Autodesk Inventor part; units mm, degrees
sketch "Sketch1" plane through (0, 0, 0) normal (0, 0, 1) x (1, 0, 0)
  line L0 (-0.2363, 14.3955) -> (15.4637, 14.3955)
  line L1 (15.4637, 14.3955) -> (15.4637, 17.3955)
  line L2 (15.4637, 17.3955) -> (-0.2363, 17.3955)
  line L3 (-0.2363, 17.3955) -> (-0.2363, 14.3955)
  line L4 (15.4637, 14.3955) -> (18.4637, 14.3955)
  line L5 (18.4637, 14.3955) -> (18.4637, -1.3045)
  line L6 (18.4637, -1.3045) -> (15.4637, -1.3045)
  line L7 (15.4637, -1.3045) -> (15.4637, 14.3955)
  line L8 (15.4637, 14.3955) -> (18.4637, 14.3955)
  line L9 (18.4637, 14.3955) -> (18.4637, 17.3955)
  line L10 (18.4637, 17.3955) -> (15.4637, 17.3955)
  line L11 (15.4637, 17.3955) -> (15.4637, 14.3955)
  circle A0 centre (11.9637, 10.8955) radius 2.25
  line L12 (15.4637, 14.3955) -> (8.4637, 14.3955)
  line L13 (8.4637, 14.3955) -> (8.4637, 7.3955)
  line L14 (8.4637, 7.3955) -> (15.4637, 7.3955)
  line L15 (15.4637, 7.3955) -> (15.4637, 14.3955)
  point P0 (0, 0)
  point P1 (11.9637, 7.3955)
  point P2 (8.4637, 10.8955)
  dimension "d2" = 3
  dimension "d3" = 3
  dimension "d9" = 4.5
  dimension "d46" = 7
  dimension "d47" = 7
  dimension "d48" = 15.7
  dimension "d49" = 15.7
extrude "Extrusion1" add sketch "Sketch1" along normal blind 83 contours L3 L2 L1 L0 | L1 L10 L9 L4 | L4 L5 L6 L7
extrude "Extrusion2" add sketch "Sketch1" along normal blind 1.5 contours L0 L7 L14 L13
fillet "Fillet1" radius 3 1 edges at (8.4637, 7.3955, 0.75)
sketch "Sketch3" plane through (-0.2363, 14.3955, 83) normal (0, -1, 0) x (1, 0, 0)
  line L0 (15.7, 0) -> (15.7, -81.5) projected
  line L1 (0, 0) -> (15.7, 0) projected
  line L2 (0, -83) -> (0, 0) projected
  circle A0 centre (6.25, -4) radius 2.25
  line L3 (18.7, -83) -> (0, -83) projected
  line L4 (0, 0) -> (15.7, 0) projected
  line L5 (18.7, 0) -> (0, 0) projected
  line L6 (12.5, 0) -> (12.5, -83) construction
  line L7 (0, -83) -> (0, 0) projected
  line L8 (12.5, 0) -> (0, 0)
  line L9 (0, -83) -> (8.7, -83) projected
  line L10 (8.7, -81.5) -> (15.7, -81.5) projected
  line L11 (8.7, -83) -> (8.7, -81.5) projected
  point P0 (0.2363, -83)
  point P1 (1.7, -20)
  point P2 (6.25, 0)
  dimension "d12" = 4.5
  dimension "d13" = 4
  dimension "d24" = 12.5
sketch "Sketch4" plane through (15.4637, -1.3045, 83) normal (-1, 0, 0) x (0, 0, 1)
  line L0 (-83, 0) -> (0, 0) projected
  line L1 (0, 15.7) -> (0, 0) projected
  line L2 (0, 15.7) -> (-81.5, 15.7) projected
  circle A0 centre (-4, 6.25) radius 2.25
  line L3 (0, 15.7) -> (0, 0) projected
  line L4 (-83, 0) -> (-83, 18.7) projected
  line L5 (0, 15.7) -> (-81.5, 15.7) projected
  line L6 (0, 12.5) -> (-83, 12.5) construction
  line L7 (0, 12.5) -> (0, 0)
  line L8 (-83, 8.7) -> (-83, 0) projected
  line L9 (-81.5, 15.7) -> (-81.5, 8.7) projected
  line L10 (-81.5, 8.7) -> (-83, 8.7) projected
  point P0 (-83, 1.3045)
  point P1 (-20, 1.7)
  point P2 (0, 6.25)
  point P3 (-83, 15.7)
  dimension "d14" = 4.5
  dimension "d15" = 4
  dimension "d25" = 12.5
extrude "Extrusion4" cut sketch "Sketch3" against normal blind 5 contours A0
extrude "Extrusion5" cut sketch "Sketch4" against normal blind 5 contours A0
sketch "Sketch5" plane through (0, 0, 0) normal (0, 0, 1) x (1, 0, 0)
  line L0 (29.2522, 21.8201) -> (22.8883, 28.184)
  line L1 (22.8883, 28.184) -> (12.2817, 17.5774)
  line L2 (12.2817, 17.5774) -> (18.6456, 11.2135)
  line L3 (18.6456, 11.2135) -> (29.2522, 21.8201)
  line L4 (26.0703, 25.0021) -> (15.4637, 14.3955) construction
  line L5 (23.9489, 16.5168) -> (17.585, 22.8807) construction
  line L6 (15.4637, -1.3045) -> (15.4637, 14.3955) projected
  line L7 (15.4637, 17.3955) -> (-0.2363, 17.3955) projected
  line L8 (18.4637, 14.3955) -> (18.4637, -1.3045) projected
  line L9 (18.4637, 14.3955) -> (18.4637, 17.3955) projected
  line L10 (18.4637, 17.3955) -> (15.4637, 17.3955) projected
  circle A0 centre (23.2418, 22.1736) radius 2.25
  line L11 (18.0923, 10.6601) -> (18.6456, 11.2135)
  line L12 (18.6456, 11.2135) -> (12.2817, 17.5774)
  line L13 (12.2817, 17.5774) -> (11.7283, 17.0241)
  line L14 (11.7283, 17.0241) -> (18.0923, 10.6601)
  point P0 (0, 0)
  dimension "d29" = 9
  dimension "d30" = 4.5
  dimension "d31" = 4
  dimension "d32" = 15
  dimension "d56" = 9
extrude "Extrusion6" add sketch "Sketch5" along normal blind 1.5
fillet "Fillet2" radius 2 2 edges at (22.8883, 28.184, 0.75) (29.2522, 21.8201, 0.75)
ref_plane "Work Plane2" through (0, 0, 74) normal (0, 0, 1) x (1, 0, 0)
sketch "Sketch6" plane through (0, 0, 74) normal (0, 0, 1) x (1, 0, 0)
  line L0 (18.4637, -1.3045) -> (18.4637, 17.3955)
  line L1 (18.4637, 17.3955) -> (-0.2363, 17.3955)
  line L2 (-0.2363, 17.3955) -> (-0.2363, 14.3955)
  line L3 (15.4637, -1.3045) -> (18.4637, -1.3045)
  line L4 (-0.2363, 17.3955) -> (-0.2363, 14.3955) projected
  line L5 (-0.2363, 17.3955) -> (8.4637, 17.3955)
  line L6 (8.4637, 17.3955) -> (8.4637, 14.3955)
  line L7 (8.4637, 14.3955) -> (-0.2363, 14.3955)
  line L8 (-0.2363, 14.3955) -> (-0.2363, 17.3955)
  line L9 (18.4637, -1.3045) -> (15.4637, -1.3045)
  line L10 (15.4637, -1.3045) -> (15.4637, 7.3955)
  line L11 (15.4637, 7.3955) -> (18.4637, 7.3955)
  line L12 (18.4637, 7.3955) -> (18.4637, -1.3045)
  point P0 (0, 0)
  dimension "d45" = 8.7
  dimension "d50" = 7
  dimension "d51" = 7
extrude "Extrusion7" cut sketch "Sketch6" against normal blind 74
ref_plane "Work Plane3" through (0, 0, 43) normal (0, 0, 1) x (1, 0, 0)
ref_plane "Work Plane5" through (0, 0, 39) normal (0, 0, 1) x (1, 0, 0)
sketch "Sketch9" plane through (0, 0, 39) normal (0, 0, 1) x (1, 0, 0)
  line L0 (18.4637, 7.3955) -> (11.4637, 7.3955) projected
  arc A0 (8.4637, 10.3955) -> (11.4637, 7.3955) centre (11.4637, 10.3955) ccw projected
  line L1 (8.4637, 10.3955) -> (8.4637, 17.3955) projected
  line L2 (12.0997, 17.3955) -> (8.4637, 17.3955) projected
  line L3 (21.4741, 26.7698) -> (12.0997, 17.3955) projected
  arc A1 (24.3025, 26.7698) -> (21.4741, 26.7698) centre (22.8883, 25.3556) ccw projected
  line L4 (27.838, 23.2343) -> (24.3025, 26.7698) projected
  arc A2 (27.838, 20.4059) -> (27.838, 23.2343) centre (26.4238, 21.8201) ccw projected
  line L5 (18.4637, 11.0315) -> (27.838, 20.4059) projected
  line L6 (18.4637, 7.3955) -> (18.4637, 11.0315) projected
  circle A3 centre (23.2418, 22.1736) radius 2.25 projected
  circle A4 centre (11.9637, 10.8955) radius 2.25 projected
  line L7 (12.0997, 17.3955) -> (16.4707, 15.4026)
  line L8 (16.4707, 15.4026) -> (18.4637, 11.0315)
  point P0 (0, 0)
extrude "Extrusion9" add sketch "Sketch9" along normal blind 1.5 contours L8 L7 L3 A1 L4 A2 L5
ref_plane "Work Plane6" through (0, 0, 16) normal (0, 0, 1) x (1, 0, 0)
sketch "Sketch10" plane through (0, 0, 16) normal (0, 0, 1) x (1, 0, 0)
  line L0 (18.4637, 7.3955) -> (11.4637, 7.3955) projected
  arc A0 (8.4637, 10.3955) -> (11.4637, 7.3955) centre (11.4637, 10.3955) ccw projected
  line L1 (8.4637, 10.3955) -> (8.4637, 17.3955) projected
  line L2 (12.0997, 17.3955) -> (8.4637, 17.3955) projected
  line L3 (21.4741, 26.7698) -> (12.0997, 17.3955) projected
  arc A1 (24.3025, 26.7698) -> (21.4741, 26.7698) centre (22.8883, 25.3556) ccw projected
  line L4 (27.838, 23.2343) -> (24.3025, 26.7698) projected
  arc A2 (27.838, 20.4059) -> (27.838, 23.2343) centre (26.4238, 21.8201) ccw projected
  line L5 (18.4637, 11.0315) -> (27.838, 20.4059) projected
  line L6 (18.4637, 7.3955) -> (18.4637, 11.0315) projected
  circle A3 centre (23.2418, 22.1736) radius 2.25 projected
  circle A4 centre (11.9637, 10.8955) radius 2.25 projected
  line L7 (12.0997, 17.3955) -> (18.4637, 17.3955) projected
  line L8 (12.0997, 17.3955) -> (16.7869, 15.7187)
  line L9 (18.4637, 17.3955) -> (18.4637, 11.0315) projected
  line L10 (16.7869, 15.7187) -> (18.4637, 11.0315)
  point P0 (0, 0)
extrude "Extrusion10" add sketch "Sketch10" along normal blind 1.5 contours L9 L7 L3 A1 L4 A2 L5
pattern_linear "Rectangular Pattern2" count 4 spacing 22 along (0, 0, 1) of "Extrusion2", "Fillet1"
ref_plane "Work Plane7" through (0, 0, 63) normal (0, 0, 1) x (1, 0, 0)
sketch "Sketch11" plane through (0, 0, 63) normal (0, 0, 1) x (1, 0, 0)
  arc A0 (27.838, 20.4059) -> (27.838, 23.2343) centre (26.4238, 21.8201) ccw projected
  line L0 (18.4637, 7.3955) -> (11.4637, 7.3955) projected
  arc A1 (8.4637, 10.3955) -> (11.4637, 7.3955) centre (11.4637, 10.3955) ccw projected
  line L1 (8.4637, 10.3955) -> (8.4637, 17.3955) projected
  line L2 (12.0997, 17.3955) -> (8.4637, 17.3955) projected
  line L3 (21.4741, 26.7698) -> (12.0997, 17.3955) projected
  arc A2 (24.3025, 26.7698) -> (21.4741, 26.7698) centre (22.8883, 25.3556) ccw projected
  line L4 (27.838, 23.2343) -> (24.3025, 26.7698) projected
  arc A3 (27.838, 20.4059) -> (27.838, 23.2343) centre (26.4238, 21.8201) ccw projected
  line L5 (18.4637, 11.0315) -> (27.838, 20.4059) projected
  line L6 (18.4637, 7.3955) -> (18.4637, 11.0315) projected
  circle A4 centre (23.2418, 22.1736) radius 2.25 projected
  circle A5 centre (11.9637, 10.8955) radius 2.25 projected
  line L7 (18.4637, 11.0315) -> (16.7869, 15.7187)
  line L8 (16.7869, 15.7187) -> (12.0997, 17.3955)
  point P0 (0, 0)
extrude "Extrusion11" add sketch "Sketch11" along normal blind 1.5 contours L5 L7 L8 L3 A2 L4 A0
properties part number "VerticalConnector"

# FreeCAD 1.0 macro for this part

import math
import FreeCAD as App
import Part
import Sketcher
from FreeCAD import Vector
Q = App.Units.Quantity


def edges_at(feature, points):
    """Names of the edges that pass closest to the given points."""
    edges = feature.Shape.Edges
    near = lambda p: min(range(len(edges)), key=lambda i: edges[i].distToShape(Part.Vertex(*p))[0])
    return sorted({f"Edge{near(p) + 1}" for p in points})


def add_polygon(sketch, points):
    """Adds a closed chain of lines whose ends are joined by coincident constraints."""
    first, n = sketch.GeometryCount, len(points)
    for a, b in zip(points, points[1:] + points[:1]):
        sketch.addGeometry(Part.LineSegment(App.Vector(*a, 0), App.Vector(*b, 0)), False)
    for i in range(n):
        sketch.addConstraint(Sketcher.Constraint("Coincident", first + i, 2, first + (i + 1) % n, 1))

doc = App.newDocument("Part")
body = doc.addObject("PartDesign::Body", "Body")

# Sketch on XY plane
sketch1 = body.newObject("Sketcher::SketchObject", "Sketch")
sketch1.AttachmentSupport = (doc.getObject("XY_Plane"), [""])
sketch1.MapMode = "FlatFace"
add_polygon(sketch1, [(-0.2, 17.4), (-0.2, 14.4), (15.5, 14.4), (15.5, -1.3), (18.5, -1.3), (18.5, 17.4)])  # lines 0-5
sketch1.addConstraint([
    Sketcher.Constraint("Vertical", 0),
    Sketcher.Constraint("Horizontal", 1),
    Sketcher.Constraint("Vertical", 2),
    Sketcher.Constraint("Horizontal", 3),
    Sketcher.Constraint("Vertical", 4),
    Sketcher.Constraint("Horizontal", 5),
    Sketcher.Constraint("Equal", 3, 0),
    Sketcher.Constraint("Equal", 1, 2),
    Sketcher.Constraint("DistanceX", 3, 1, 3, 2, 3.0),
    Sketcher.Constraint("DistanceX", 1, 1, 1, 2, 15.7),
    Sketcher.Constraint("DistanceX", 0, 2, -1, 1, 0.2363),
    Sketcher.Constraint("DistanceY", -1, 1, 0, 2, 14.3955),
])
pad1 = body.newObject("PartDesign::Pad", "Pad")
pad1.Profile = sketch1
pad1.Length = 83

# Sketch on XY plane
sketch2 = body.newObject("Sketcher::SketchObject", "Sketch001")
sketch2.AttachmentSupport = (doc.getObject("XY_Plane"), [""])
sketch2.MapMode = "FlatFace"
add_polygon(sketch2, [(15.5, 14.4), (8.5, 14.4), (8.5, 7.4), (15.5, 7.4)])  # lines 0-3
sketch2.addGeometry(Part.Circle(Vector(12, 10.9, 0), Vector(0, 0, 1), 2.2), False)  # 4
sketch2.addConstraint([
    Sketcher.Constraint("Horizontal", 0),
    Sketcher.Constraint("Vertical", 1),
    Sketcher.Constraint("Horizontal", 2),
    Sketcher.Constraint("Vertical", 3),
    Sketcher.Constraint("Equal", 2, 1),
    Sketcher.Constraint("Diameter", 4, 4.5),
    Sketcher.Constraint("DistanceX", 0, 2, 0, 1, 7.0),
    Sketcher.Constraint("DistanceX", 0, 2, 4, 3, 3.5),
    Sketcher.Constraint("DistanceY", 4, 3, 0, 2, 3.5),
    Sketcher.Constraint("DistanceX", -1, 1, 4, 3, 11.9637),
    Sketcher.Constraint("DistanceY", -1, 1, 4, 3, 10.8955),
])
pad2 = body.newObject("PartDesign::Pad", "Pad001")
pad2.Profile = sketch2
pad2.Length = 1.5
doc.recompute()

fillet = body.newObject("PartDesign::Fillet", "Fillet")
fillet.Base = (pad2, edges_at(pad2, [(8.464, 7.396, 0.75)]))
fillet.Radius = 3

# Sketch on XZ plane
sketch3 = body.newObject("Sketcher::SketchObject", "Sketch002")
sketch3.AttachmentSupport = (doc.getObject("XZ_Plane"), [""])
sketch3.MapMode = "FlatFace"
sketch3.AttachmentOffset = App.Placement(Vector(0, 0, -14.3955), App.Rotation())
sketch3.addGeometry(Part.Circle(Vector(6, 79, 0), Vector(0, 0, 1), 2.2), False)
sketch3.addConstraint([
    Sketcher.Constraint("Diameter", 0, 4.5),
    Sketcher.Constraint("DistanceY", -1, 1, 0, 3, 79.0),
    Sketcher.Constraint("DistanceX", -1, 1, 0, 3, 6.0137),
])
pocket1 = body.newObject("PartDesign::Pocket", "Pocket")
pocket1.Profile = sketch3
pocket1.Length = 5

# Sketch on YZ plane
sketch4 = body.newObject("Sketcher::SketchObject", "Sketch003")
sketch4.AttachmentSupport = (doc.getObject("YZ_Plane"), [""])
sketch4.MapMode = "FlatFace"
sketch4.AttachmentOffset = App.Placement(Vector(0, 0, 15.4637), App.Rotation())
sketch4.addGeometry(Part.Circle(Vector(4.9, 79, 0), Vector(0, 0, 1), 2.2), False)
sketch4.addConstraint([
    Sketcher.Constraint("Diameter", 0, 4.5),
    Sketcher.Constraint("DistanceY", -1, 1, 0, 3, 79.0),
    Sketcher.Constraint("DistanceX", -1, 1, 0, 3, 4.9455),
])
pocket2 = body.newObject("PartDesign::Pocket", "Pocket001")
pocket2.Profile = sketch4
pocket2.Length = 5
pocket2.Reversed = True

# Sketch on XY plane
sketch5 = body.newObject("Sketcher::SketchObject", "Sketch004")
sketch5.AttachmentSupport = (doc.getObject("XY_Plane"), [""])
sketch5.MapMode = "FlatFace"
add_polygon(sketch5, [(18.6, 11.2), (29.3, 21.8), (22.9, 28.2), (12.3, 17.6), (11.7, 17), (18.1, 10.7)])  # lines 0-5
sketch5.addGeometry(Part.Circle(Vector(23.2, 22.2, 0), Vector(0, 0, 1), 2.2), False)  # 6
sketch5.addConstraint([
    Sketcher.Constraint("Perpendicular", 0, 1),
    Sketcher.Constraint("Perpendicular", 1, 2),
    Sketcher.Constraint("Parallel", 2, 3),
    Sketcher.Constraint("Perpendicular", 3, 4),
    Sketcher.Constraint("Perpendicular", 4, 5),
    Sketcher.Constraint("Equal", 0, 2),
    Sketcher.Constraint("Diameter", 6, 4.5),
    Sketcher.Constraint("Distance", 0, 15.0),
    Sketcher.Constraint("Distance", 1, 9.0),
    Sketcher.Constraint("Angle", 0, Q("45 deg")),
    Sketcher.Constraint("DistanceY", -1, 1, 0, 2, 21.82),
    Sketcher.Constraint("DistanceY", -1, 1, 4, 2, 10.66),
    Sketcher.Constraint("DistanceX", 2, 2, 6, 3, 10.96),
    Sketcher.Constraint("DistanceY", 5, 2, 6, 3, 10.96),
    Sketcher.Constraint("DistanceX", -1, 1, 6, 3, 23.2418),
])
pad3 = body.newObject("PartDesign::Pad", "Pad002")
pad3.Profile = sketch5
pad3.Length = 1.5
doc.recompute()

fillet2 = body.newObject("PartDesign::Fillet", "Fillet001")
fillet2.Base = (pad3, edges_at(pad3, [(22.888, 28.184, 0.75), (29.252, 21.82, 0.75)]))
fillet2.Radius = 2

# Sketch on XY plane
sketch6 = body.newObject("Sketcher::SketchObject", "Sketch005")
sketch6.AttachmentSupport = (doc.getObject("XY_Plane"), [""])
sketch6.MapMode = "FlatFace"
sketch6.AttachmentOffset = App.Placement(Vector(0, 0, 74), App.Rotation())
add_polygon(sketch6, [(15.5, -1.3), (18.5, -1.3), (18.5, 7.4), (15.5, 7.4)])  # lines 0-3
add_polygon(sketch6, [(8.5, 14.4), (8.5, 17.4), (-0.2, 17.4), (-0.2, 14.4)])  # lines 4-7
sketch6.addConstraint([
    Sketcher.Constraint("Horizontal", 0),
    Sketcher.Constraint("Vertical", 1),
    Sketcher.Constraint("Horizontal", 2),
    Sketcher.Constraint("Vertical", 3),
    Sketcher.Constraint("Vertical", 4),
    Sketcher.Constraint("Horizontal", 5),
    Sketcher.Constraint("Vertical", 6),
    Sketcher.Constraint("Horizontal", 7),
    Sketcher.Constraint("Equal", 7, 1),
    Sketcher.Constraint("Equal", 2, 4),
    Sketcher.Constraint("DistanceX", 5, 2, 5, 1, 8.7),
    Sketcher.Constraint("DistanceX", 4, 2, 2, 2, 7.0),
    Sketcher.Constraint("DistanceY", 2, 2, 6, 2, 7.0),
    Sketcher.Constraint("DistanceX", 0, 1, 0, 2, 3.0),
    Sketcher.Constraint("DistanceX", -1, 1, 0, 2, 18.4637),
    Sketcher.Constraint("DistanceY", 0, 2, -1, 1, 1.3045),
])
pocket3 = body.newObject("PartDesign::Pocket", "Pocket002")
pocket3.Profile = sketch6
pocket3.Length = 74

# Sketch on XY plane
sketch7 = body.newObject("Sketcher::SketchObject", "Sketch006")
sketch7.AttachmentSupport = (doc.getObject("XY_Plane"), [""])
sketch7.MapMode = "FlatFace"
sketch7.AttachmentOffset = App.Placement(Vector(0, 0, 39), App.Rotation())
sketch7.addGeometry([
    Part.LineSegment(Vector(16.5, 15.4, 0), Vector(18.5, 11, 0)),  # 0
    Part.LineSegment(Vector(18.5, 11, 0), Vector(27.8, 20.4, 0)),  # 1
    Part.ArcOfCircle(Part.Circle(Vector(26.4, 21.8, 0), Vector(0, 0, 1), 2), math.radians(-45), math.radians(45)),  # 2
    Part.LineSegment(Vector(27.8, 23.2, 0), Vector(24.3, 26.8, 0)),  # 3
    Part.ArcOfCircle(Part.Circle(Vector(22.9, 25.4, 0), Vector(0, 0, 1), 2), math.radians(45), math.radians(135)),  # 4
    Part.LineSegment(Vector(21.5, 26.8, 0), Vector(12.1, 17.4, 0)),  # 5
    Part.LineSegment(Vector(12.1, 17.4, 0), Vector(16.5, 15.4, 0)),  # 6
    Part.Circle(Vector(23.2, 22.2, 0), Vector(0, 0, 1), 2.2),  # 7
], False)
sketch7.addConstraint([
    Sketcher.Constraint("Coincident", 0, 2, 1, 1),
    Sketcher.Constraint("Tangent", 1, 2, 2, 1),
    Sketcher.Constraint("Tangent", 2, 2, 3, 1),
    Sketcher.Constraint("Tangent", 3, 2, 4, 1),
    Sketcher.Constraint("Tangent", 4, 2, 5, 1),
    Sketcher.Constraint("Coincident", 5, 2, 6, 1),
    Sketcher.Constraint("Coincident", 6, 2, 0, 1),
    Sketcher.Constraint("Equal", 2, 4),
    Sketcher.Constraint("Perpendicular", 1, 3),
    Sketcher.Constraint("Perpendicular", 3, 5),
    Sketcher.Constraint("Horizontal", 3, 2, 4, 2),
    Sketcher.Constraint("Equal", 1, 5),
    Sketcher.Constraint("Equal", 0, 6),
    Sketcher.Constraint("Radius", 2, 2.0),
    Sketcher.Constraint("Diameter", 7, 4.5),
    Sketcher.Constraint("Distance", 3, 5.0),
    Sketcher.Constraint("Angle", 0, Q("-65.4894 deg")),
    Sketcher.Constraint("DistanceY", -1, 1, 2, 3, 21.82),
    Sketcher.Constraint("DistanceX", 0, 2, 2, 3, 7.96),
    Sketcher.Constraint("DistanceX", -1, 1, 1, 2, 27.838),
    Sketcher.Constraint("DistanceX", 7, 3, 2, 3, 3.182),
    Sketcher.Constraint("DistanceY", 7, 3, 4, 3, 3.182),
])
pad4 = body.newObject("PartDesign::Pad", "Pad003")
pad4.Profile = sketch7
pad4.Length = 1.5

# Sketch on XY plane
sketch8 = body.newObject("Sketcher::SketchObject", "Sketch007")
sketch8.AttachmentSupport = (doc.getObject("XY_Plane"), [""])
sketch8.MapMode = "FlatFace"
sketch8.AttachmentOffset = App.Placement(Vector(0, 0, 16), App.Rotation())
sketch8.addGeometry([
    Part.LineSegment(Vector(18.5, 17.4, 0), Vector(18.5, 11, 0)),  # 0
    Part.LineSegment(Vector(18.5, 11, 0), Vector(27.8, 20.4, 0)),  # 1
    Part.ArcOfCircle(Part.Circle(Vector(26.4, 21.8, 0), Vector(0, 0, 1), 2), math.radians(-45), math.radians(45)),  # 2
    Part.LineSegment(Vector(27.8, 23.2, 0), Vector(24.3, 26.8, 0)),  # 3
    Part.ArcOfCircle(Part.Circle(Vector(22.9, 25.4, 0), Vector(0, 0, 1), 2), math.radians(45), math.radians(135)),  # 4
    Part.LineSegment(Vector(21.5, 26.8, 0), Vector(12.1, 17.4, 0)),  # 5
    Part.LineSegment(Vector(12.1, 17.4, 0), Vector(18.5, 17.4, 0)),  # 6
    Part.Circle(Vector(23.2, 22.2, 0), Vector(0, 0, 1), 2.2),  # 7
], False)
sketch8.addConstraint([
    Sketcher.Constraint("Coincident", 0, 2, 1, 1),
    Sketcher.Constraint("Tangent", 1, 2, 2, 1),
    Sketcher.Constraint("Tangent", 2, 2, 3, 1),
    Sketcher.Constraint("Tangent", 3, 2, 4, 1),
    Sketcher.Constraint("Tangent", 4, 2, 5, 1),
    Sketcher.Constraint("Coincident", 5, 2, 6, 1),
    Sketcher.Constraint("Coincident", 6, 2, 0, 1),
    Sketcher.Constraint("Vertical", 0),
    Sketcher.Constraint("Horizontal", 6),
    Sketcher.Constraint("Equal", 2, 4),
    Sketcher.Constraint("Perpendicular", 1, 3),
    Sketcher.Constraint("Perpendicular", 3, 5),
    Sketcher.Constraint("Horizontal", 3, 2, 4, 2),
    Sketcher.Constraint("Equal", 6, 0),
    Sketcher.Constraint("Radius", 2, 2.0),
    Sketcher.Constraint("Diameter", 7, 4.5),
    Sketcher.Constraint("Distance", 3, 5.0),
    Sketcher.Constraint("DistanceY", -1, 1, 2, 3, 21.82),
    Sketcher.Constraint("DistanceX", 0, 2, 2, 3, 7.96),
    Sketcher.Constraint("DistanceX", -1, 1, 1, 2, 27.838),
    Sketcher.Constraint("DistanceX", 7, 3, 2, 3, 3.182),
    Sketcher.Constraint("DistanceY", 7, 3, 4, 3, 3.182),
])
pad5 = body.newObject("PartDesign::Pad", "Pad004")
pad5.Profile = sketch8
pad5.Length = 1.5
doc.recompute()

linearpattern = body.newObject("PartDesign::LinearPattern", "LinearPattern")
linearpattern.Originals = [pad2, fillet]
linearpattern.Direction = (doc.getObject("Z_Axis"), [""])
linearpattern.Mode = "offset"
linearpattern.Offset = 22
linearpattern.Occurrences = 4
body.Tip = linearpattern

# Sketch on XY plane
sketch9 = body.newObject("Sketcher::SketchObject", "Sketch008")
sketch9.AttachmentSupport = (doc.getObject("XY_Plane"), [""])
sketch9.MapMode = "FlatFace"
sketch9.AttachmentOffset = App.Placement(Vector(0, 0, 63), App.Rotation())
sketch9.addGeometry([
    Part.LineSegment(Vector(18.5, 11, 0), Vector(27.8, 20.4, 0)),  # 0
    Part.ArcOfCircle(Part.Circle(Vector(26.4, 21.8, 0), Vector(0, 0, 1), 2), math.radians(-45), math.radians(45)),  # 1
    Part.LineSegment(Vector(27.8, 23.2, 0), Vector(24.3, 26.8, 0)),  # 2
    Part.ArcOfCircle(Part.Circle(Vector(22.9, 25.4, 0), Vector(0, 0, 1), 2), math.radians(45), math.radians(135)),  # 3
    Part.LineSegment(Vector(21.5, 26.8, 0), Vector(12.1, 17.4, 0)),  # 4
    Part.LineSegment(Vector(12.1, 17.4, 0), Vector(16.8, 15.7, 0)),  # 5
    Part.LineSegment(Vector(16.8, 15.7, 0), Vector(18.5, 11, 0)),  # 6
    Part.Circle(Vector(23.2, 22.2, 0), Vector(0, 0, 1), 2.2),  # 7
], False)
sketch9.addConstraint([
    Sketcher.Constraint("Tangent", 0, 2, 1, 1),
    Sketcher.Constraint("Tangent", 1, 2, 2, 1),
    Sketcher.Constraint("Tangent", 2, 2, 3, 1),
    Sketcher.Constraint("Tangent", 3, 2, 4, 1),
    Sketcher.Constraint("Coincident", 4, 2, 5, 1),
    Sketcher.Constraint("Coincident", 5, 2, 6, 1),
    Sketcher.Constraint("Coincident", 6, 2, 0, 1),
    Sketcher.Constraint("Equal", 1, 3),
    Sketcher.Constraint("Perpendicular", 0, 2),
    Sketcher.Constraint("Perpendicular", 2, 4),
    Sketcher.Constraint("Horizontal", 2, 2, 3, 2),
    Sketcher.Constraint("Equal", 0, 4),
    Sketcher.Constraint("Equal", 5, 6),
    Sketcher.Constraint("Radius", 1, 2.0),
    Sketcher.Constraint("Diameter", 7, 4.5),
    Sketcher.Constraint("Distance", 2, 5.0),
    Sketcher.Constraint("DistanceY", -1, 1, 1, 3, 21.82),
    Sketcher.Constraint("DistanceY", 4, 2, 3, 3, 7.96),
    Sketcher.Constraint("Distance", 5, 4.978),
    Sketcher.Constraint("DistanceX", -1, 1, 0, 2, 27.838),
    Sketcher.Constraint("DistanceX", 7, 3, 1, 3, 3.182),
    Sketcher.Constraint("DistanceY", 7, 3, 3, 3, 3.182),
])
pad6 = body.newObject("PartDesign::Pad", "Pad005")
pad6.Profile = sketch9
pad6.Length = 1.5

doc.recompute()
